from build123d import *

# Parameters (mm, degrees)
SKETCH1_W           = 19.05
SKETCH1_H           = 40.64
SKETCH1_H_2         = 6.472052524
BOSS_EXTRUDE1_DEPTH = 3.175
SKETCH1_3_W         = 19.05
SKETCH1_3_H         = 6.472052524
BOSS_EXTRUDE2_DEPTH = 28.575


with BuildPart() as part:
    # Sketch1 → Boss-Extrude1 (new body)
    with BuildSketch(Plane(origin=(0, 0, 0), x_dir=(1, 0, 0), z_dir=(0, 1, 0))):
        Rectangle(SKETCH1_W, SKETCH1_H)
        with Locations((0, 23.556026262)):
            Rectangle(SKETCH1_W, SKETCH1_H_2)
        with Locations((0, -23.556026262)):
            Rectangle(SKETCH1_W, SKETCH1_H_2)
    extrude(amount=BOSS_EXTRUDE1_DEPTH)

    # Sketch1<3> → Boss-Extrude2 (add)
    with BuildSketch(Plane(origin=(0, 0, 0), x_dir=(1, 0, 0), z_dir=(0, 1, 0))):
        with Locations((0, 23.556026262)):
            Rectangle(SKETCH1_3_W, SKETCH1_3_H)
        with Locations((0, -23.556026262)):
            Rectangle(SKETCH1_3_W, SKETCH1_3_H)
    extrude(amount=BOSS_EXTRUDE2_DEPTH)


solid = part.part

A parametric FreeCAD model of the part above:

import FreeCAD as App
import Part
import Sketcher
Q = App.Units.Quantity

doc = App.newDocument("Part")
params = doc.addObject("Spreadsheet::Sheet", "Params")
for row, (alias, value) in enumerate([
    ("sketch1_width", "0.75 in"),
    ("pad1_length", "0.125 in"),
    ("sketch2_width", "0.75 in"),
    ("pad2_length", "1.125 in"),
], start=1):
    params.set(f"A{row}", alias)
    params.set(f"B{row}", "=" + value)
    params.setAlias(f"B{row}", alias)

body = doc.addObject("PartDesign::Body", "Body")

sketch1 = body.newObject("Sketcher::SketchObject", "Sketch")
sketch1.AttachmentSupport = (doc.getObject("XZ_Plane"), [""])
sketch1.MapMode = "FlatFace"
sketch1.addGeometry([
    Part.LineSegment(App.Vector(9.525, -26.792053, 0), App.Vector(-9.525, -26.792053, 0)),
    Part.LineSegment(App.Vector(-9.525, -26.792053, 0), App.Vector(-9.525, 26.792053, 0)),
    Part.LineSegment(App.Vector(-9.525, 26.792053, 0), App.Vector(9.525, 26.792053, 0)),
    Part.LineSegment(App.Vector(9.525, 26.792053, 0), App.Vector(9.525, -26.792053, 0)),
], False)
sketch1.addConstraint([
    Sketcher.Constraint("Coincident", 0, 2, 1, 1),
    Sketcher.Constraint("Coincident", 1, 2, 2, 1),
    Sketcher.Constraint("Coincident", 2, 2, 3, 1),
    Sketcher.Constraint("Coincident", 3, 2, 0, 1),
    Sketcher.Constraint("Horizontal", 0),
    Sketcher.Constraint("Vertical", 1),
    Sketcher.Constraint("Horizontal", 2),
    Sketcher.Constraint("Vertical", 3),
    Sketcher.Constraint("Symmetric", 0, 2, 2, 2, -1, 1),
    Sketcher.Constraint("DistanceX", 0, 2, 0, 1, Q("0.75 in")),
    Sketcher.Constraint("DistanceY", 1, 1, 1, 2, Q("53.584105 mm")),
])
sketch1.setExpression("Constraints[9]", "Params.sketch1_width")
pad1 = body.newObject("PartDesign::Pad", "Pad")
pad1.Profile = sketch1
pad1.setExpression("Length", "Params.pad1_length")
pad1.Reversed = True

sketch2 = body.newObject("Sketcher::SketchObject", "Sketch001")
sketch2.AttachmentSupport = (doc.getObject("XZ_Plane"), [""])
sketch2.MapMode = "FlatFace"
sketch2.addGeometry([
    Part.LineSegment(App.Vector(-9.525, -26.792053, 0), App.Vector(-9.525, -20.32, 0)),
    Part.LineSegment(App.Vector(-9.525, -20.32, 0), App.Vector(9.525, -20.32, 0)),
    Part.LineSegment(App.Vector(9.525, -20.32, 0), App.Vector(9.525, -26.792053, 0)),
    Part.LineSegment(App.Vector(9.525, -26.792053, 0), App.Vector(-9.525, -26.792053, 0)),
    Part.LineSegment(App.Vector(-9.525, 20.32, 0), App.Vector(-9.525, 26.792053, 0)),
    Part.LineSegment(App.Vector(-9.525, 26.792053, 0), App.Vector(9.525, 26.792053, 0)),
    Part.LineSegment(App.Vector(9.525, 26.792053, 0), App.Vector(9.525, 20.32, 0)),
    Part.LineSegment(App.Vector(9.525, 20.32, 0), App.Vector(-9.525, 20.32, 0)),
], False)
sketch2.addConstraint([
    Sketcher.Constraint("Coincident", 0, 2, 1, 1),
    Sketcher.Constraint("Coincident", 1, 2, 2, 1),
    Sketcher.Constraint("Coincident", 2, 2, 3, 1),
    Sketcher.Constraint("Coincident", 3, 2, 0, 1),
    Sketcher.Constraint("Coincident", 4, 2, 5, 1),
    Sketcher.Constraint("Coincident", 5, 2, 6, 1),
    Sketcher.Constraint("Coincident", 6, 2, 7, 1),
    Sketcher.Constraint("Coincident", 7, 2, 4, 1),
    Sketcher.Constraint("Vertical", 0),
    Sketcher.Constraint("Horizontal", 1),
    Sketcher.Constraint("Vertical", 2),
    Sketcher.Constraint("Horizontal", 3),
    Sketcher.Constraint("Vertical", 4),
    Sketcher.Constraint("Horizontal", 5),
    Sketcher.Constraint("Vertical", 6),
    Sketcher.Constraint("Horizontal", 7),
    Sketcher.Constraint("Symmetric", 2, 2, 4, 2, -1, 1),
    Sketcher.Constraint("Symmetric", 0, 2, 6, 2, -1, 1),
    Sketcher.Constraint("Vertical", 3, 2, 4, 2),
    Sketcher.Constraint("DistanceX", 1, 1, 1, 2, Q("0.75 in")),
    Sketcher.Constraint("DistanceY", 0, 2, -1, 1, Q("0.8 in")),
    Sketcher.Constraint("DistanceY", 0, 1, 0, 2, Q("6.472053 mm")),
])
sketch2.setExpression("Constraints[19]", "Params.sketch2_width")
pad2 = body.newObject("PartDesign::Pad", "Pad001")
pad2.Profile = sketch2
pad2.setExpression("Length", "Params.pad2_length")
pad2.Reversed = True

doc.recompute()
